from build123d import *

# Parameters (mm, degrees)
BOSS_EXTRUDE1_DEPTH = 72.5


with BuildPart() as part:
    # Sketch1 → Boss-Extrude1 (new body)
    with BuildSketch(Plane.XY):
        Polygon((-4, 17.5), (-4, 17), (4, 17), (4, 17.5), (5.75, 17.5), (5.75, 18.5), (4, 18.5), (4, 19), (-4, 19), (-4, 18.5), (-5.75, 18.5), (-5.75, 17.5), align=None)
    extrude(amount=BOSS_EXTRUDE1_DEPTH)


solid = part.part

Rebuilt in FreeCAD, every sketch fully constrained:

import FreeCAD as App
import Part
import Sketcher

V = App.Vector


def add_polygon(sketch, points):
    """Adds a closed chain of lines whose ends are joined by coincident constraints."""
    first, n = sketch.GeometryCount, len(points)
    for a, b in zip(points, points[1:] + points[:1]):
        sketch.addGeometry(Part.LineSegment(App.Vector(*a, 0), App.Vector(*b, 0)), False)
    for i in range(n):
        sketch.addConstraint(Sketcher.Constraint("Coincident", first + i, 2, first + (i + 1) % n, 1))

doc = App.newDocument("Part")
body = doc.addObject("PartDesign::Body", "Body")

# Sketch on XY plane
sketch1 = body.newObject("Sketcher::SketchObject", "Sketch")
sketch1.AttachmentSupport = (doc.getObject("XY_Plane"), [""])
sketch1.MapMode = "FlatFace"
add_polygon(sketch1, [(-4, 17.5), (-4, 17), (4, 17), (4, 17.5), (5.8, 17.5), (5.8, 18.5), (4, 18.5), (4, 19), (-4, 19), (-4, 18.5), (-5.8, 18.5), (-5.8, 17.5)])  # lines 0-11
sketch1.addConstraint(Sketcher.Constraint("Vertical", 0))
sketch1.addConstraint(Sketcher.Constraint("Horizontal", 1))
sketch1.addConstraint(Sketcher.Constraint("Vertical", 2))
sketch1.addConstraint(Sketcher.Constraint("Horizontal", 3))
sketch1.addConstraint(Sketcher.Constraint("Vertical", 4))
sketch1.addConstraint(Sketcher.Constraint("Horizontal", 5))
sketch1.addConstraint(Sketcher.Constraint("Vertical", 6))
sketch1.addConstraint(Sketcher.Constraint("Horizontal", 7))
sketch1.addConstraint(Sketcher.Constraint("Vertical", 8))
sketch1.addConstraint(Sketcher.Constraint("Horizontal", 9))
sketch1.addConstraint(Sketcher.Constraint("Vertical", 10))
sketch1.addConstraint(Sketcher.Constraint("Horizontal", 11))
sketch1.addConstraint(Sketcher.Constraint("Symmetric", 5, 2, 8, 2, -2))
sketch1.addConstraint(Sketcher.Constraint("Symmetric", 3, 2, 10, 2, -2))
sketch1.addConstraint(Sketcher.Constraint("Vertical", 2, 2, 5, 2))
sketch1.addConstraint(Sketcher.Constraint("Vertical", 0, 2, 7, 2))
sketch1.addConstraint(Sketcher.Constraint("Equal", 2, 6))
sketch1.addConstraint(Sketcher.Constraint("DistanceX", 1, 1, 1, 2, 8.0))
sketch1.addConstraint(Sketcher.Constraint("DistanceY", 4, 1, 4, 2, 1.0))
sketch1.addConstraint(Sketcher.Constraint("DistanceY", 0, 2, 0, 1, 0.5))
sketch1.addConstraint(Sketcher.Constraint("DistanceY", -1, 1, 0, 2, 17.0))
sketch1.addConstraint(Sketcher.Constraint("DistanceX", 3, 1, 3, 2, 1.75))
pad1 = body.newObject("PartDesign::Pad", "Pad")
pad1.Profile = sketch1
pad1.Length = 72.5

doc.recompute()
